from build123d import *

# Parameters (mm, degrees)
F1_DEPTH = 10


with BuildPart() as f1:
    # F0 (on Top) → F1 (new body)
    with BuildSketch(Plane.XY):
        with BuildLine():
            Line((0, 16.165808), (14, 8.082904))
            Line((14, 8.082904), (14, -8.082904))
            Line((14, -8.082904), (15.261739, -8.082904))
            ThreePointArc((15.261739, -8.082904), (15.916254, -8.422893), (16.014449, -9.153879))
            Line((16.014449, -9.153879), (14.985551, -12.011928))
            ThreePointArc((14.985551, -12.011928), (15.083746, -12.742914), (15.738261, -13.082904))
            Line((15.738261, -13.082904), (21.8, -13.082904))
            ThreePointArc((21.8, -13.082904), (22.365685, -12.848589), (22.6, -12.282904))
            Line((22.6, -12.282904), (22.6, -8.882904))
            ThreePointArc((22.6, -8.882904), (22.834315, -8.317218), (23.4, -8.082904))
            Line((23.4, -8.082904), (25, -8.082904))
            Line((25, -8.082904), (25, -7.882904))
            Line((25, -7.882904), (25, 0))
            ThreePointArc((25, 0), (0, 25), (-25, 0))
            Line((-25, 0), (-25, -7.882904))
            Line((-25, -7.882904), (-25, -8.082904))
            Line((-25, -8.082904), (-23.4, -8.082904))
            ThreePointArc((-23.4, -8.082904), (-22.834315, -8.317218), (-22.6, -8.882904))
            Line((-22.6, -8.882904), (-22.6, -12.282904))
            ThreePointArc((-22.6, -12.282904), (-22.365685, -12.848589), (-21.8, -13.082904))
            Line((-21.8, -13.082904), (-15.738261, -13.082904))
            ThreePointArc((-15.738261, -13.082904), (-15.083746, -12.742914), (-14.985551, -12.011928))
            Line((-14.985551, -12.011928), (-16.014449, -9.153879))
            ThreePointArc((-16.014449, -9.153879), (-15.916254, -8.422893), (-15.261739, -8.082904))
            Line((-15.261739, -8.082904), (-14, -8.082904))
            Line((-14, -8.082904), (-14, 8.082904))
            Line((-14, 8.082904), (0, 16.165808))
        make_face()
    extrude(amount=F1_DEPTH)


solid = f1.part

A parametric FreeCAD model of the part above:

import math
import FreeCAD as App
import Part
import Sketcher
Q = App.Units.Quantity

doc = App.newDocument("Part")
body = doc.addObject("PartDesign::Body", "Body")

sketch1 = body.newObject("Sketcher::SketchObject", "Sketch")
sketch1.AttachmentSupport = (doc.getObject("XY_Plane"), [""])
sketch1.MapMode = "FlatFace"
sketch1.addGeometry(Part.LineSegment(App.Vector(0, 16.2, 0), App.Vector(14, 8.1, 0)), False)
sketch1.addGeometry(Part.LineSegment(App.Vector(14, 8.1, 0), App.Vector(14, -8.1, 0)), False)
sketch1.addGeometry(Part.LineSegment(App.Vector(14, -8.1, 0), App.Vector(15.3, -8.1, 0)), False)
sketch1.addGeometry(Part.ArcOfCircle(Part.Circle(App.Vector(15.3, -8.9, 0), App.Vector(0, 0, 1), 0.8), math.radians(-20), math.radians(90)), False)
sketch1.addGeometry(Part.LineSegment(App.Vector(16, -9.2, 0), App.Vector(15, -12, 0)), False)
sketch1.addGeometry(Part.ArcOfCircle(Part.Circle(App.Vector(15.7, -12.3, 0), App.Vector(0, 0, 1), 0.8), math.radians(160), math.radians(270)), False)
sketch1.addGeometry(Part.LineSegment(App.Vector(15.7, -13.1, 0), App.Vector(21.8, -13.1, 0)), False)
sketch1.addGeometry(Part.ArcOfCircle(Part.Circle(App.Vector(21.8, -12.3, 0), App.Vector(0, 0, 1), 0.8), math.radians(-90), math.radians(0)), False)
sketch1.addGeometry(Part.LineSegment(App.Vector(22.6, -12.3, 0), App.Vector(22.6, -8.9, 0)), False)
sketch1.addGeometry(Part.ArcOfCircle(Part.Circle(App.Vector(23.4, -8.9, 0), App.Vector(0, 0, 1), 0.8), math.radians(90), math.radians(180)), False)
sketch1.addGeometry(Part.LineSegment(App.Vector(23.4, -8.1, 0), App.Vector(25, -8.1, 0)), False)
sketch1.addGeometry(Part.LineSegment(App.Vector(25, -8.1, 0), App.Vector(25, 0, 0)), False)
sketch1.addGeometry(Part.ArcOfCircle(Part.Circle(App.Vector(0, 0, 0), App.Vector(0, 0, 1), 25), math.radians(0), math.radians(180)), False)
sketch1.addGeometry(Part.LineSegment(App.Vector(-25, 0, 0), App.Vector(-25, -8.1, 0)), False)
sketch1.addGeometry(Part.LineSegment(App.Vector(-25, -8.1, 0), App.Vector(-23.4, -8.1, 0)), False)
sketch1.addGeometry(Part.ArcOfCircle(Part.Circle(App.Vector(-23.4, -8.9, 0), App.Vector(0, 0, 1), 0.8), math.radians(0), math.radians(90)), False)
sketch1.addGeometry(Part.LineSegment(App.Vector(-22.6, -8.9, 0), App.Vector(-22.6, -12.3, 0)), False)
sketch1.addGeometry(Part.ArcOfCircle(Part.Circle(App.Vector(-21.8, -12.3, 0), App.Vector(0, 0, 1), 0.8), math.radians(-180), math.radians(-90)), False)
sketch1.addGeometry(Part.LineSegment(App.Vector(-21.8, -13.1, 0), App.Vector(-15.7, -13.1, 0)), False)
sketch1.addGeometry(Part.ArcOfCircle(Part.Circle(App.Vector(-15.7, -12.3, 0), App.Vector(0, 0, 1), 0.8), math.radians(-90), math.radians(20)), False)
sketch1.addGeometry(Part.LineSegment(App.Vector(-15, -12, 0), App.Vector(-16, -9.2, 0)), False)
sketch1.addGeometry(Part.ArcOfCircle(Part.Circle(App.Vector(-15.3, -8.9, 0), App.Vector(0, 0, 1), 0.8), math.radians(90), math.radians(200)), False)
sketch1.addGeometry(Part.LineSegment(App.Vector(-15.3, -8.1, 0), App.Vector(-14, -8.1, 0)), False)
sketch1.addGeometry(Part.LineSegment(App.Vector(-14, -8.1, 0), App.Vector(-14, 8.1, 0)), False)
sketch1.addGeometry(Part.LineSegment(App.Vector(-14, 8.1, 0), App.Vector(0, 16.2, 0)), False)
sketch1.addConstraint(Sketcher.Constraint("Coincident", 0, 2, 1, 1))
sketch1.addConstraint(Sketcher.Constraint("Coincident", 1, 2, 2, 1))
sketch1.addConstraint(Sketcher.Constraint("Tangent", 2, 2, 3, 2))
sketch1.addConstraint(Sketcher.Constraint("Tangent", 3, 1, 4, 1))
sketch1.addConstraint(Sketcher.Constraint("Tangent", 4, 2, 5, 1))
sketch1.addConstraint(Sketcher.Constraint("Tangent", 5, 2, 6, 1))
sketch1.addConstraint(Sketcher.Constraint("Tangent", 6, 2, 7, 1))
sketch1.addConstraint(Sketcher.Constraint("Tangent", 7, 2, 8, 1))
sketch1.addConstraint(Sketcher.Constraint("Tangent", 8, 2, 9, 2))
sketch1.addConstraint(Sketcher.Constraint("Tangent", 9, 1, 10, 1))
sketch1.addConstraint(Sketcher.Constraint("Coincident", 10, 2, 11, 1))
sketch1.addConstraint(Sketcher.Constraint("Tangent", 11, 2, 12, 1))
sketch1.addConstraint(Sketcher.Constraint("Tangent", 12, 2, 13, 1))
sketch1.addConstraint(Sketcher.Constraint("Coincident", 13, 2, 14, 1))
sketch1.addConstraint(Sketcher.Constraint("Tangent", 14, 2, 15, 2))
sketch1.addConstraint(Sketcher.Constraint("Tangent", 15, 1, 16, 1))
sketch1.addConstraint(Sketcher.Constraint("Tangent", 16, 2, 17, 1))
sketch1.addConstraint(Sketcher.Constraint("Tangent", 17, 2, 18, 1))
sketch1.addConstraint(Sketcher.Constraint("Tangent", 18, 2, 19, 1))
sketch1.addConstraint(Sketcher.Constraint("Tangent", 19, 2, 20, 1))
sketch1.addConstraint(Sketcher.Constraint("Tangent", 20, 2, 21, 2))
sketch1.addConstraint(Sketcher.Constraint("Tangent", 21, 1, 22, 1))
sketch1.addConstraint(Sketcher.Constraint("Coincident", 22, 2, 23, 1))
sketch1.addConstraint(Sketcher.Constraint("Coincident", 23, 2, 24, 1))
sketch1.addConstraint(Sketcher.Constraint("Coincident", 24, 2, 0, 1))
sketch1.addConstraint(Sketcher.Constraint("Vertical", 1))
sketch1.addConstraint(Sketcher.Constraint("Horizontal", 2))
sketch1.addConstraint(Sketcher.Constraint("Horizontal", 6))
sketch1.addConstraint(Sketcher.Constraint("Vertical", 8))
sketch1.addConstraint(Sketcher.Constraint("Horizontal", 10))
sketch1.addConstraint(Sketcher.Constraint("Vertical", 11))
sketch1.addConstraint(Sketcher.Constraint("Vertical", 13))
sketch1.addConstraint(Sketcher.Constraint("Horizontal", 14))
sketch1.addConstraint(Sketcher.Constraint("Vertical", 16))
sketch1.addConstraint(Sketcher.Constraint("Horizontal", 18))
sketch1.addConstraint(Sketcher.Constraint("Horizontal", 22))
sketch1.addConstraint(Sketcher.Constraint("Vertical", 23))
sketch1.addConstraint(Sketcher.Constraint("Coincident", 12, 3, -1, 1))
sketch1.addConstraint(Sketcher.Constraint("Equal", 3, 5))
sketch1.addConstraint(Sketcher.Constraint("Equal", 5, 7))
sketch1.addConstraint(Sketcher.Constraint("Equal", 7, 9))
sketch1.addConstraint(Sketcher.Constraint("Equal", 9, 15))
sketch1.addConstraint(Sketcher.Constraint("Equal", 15, 17))
sketch1.addConstraint(Sketcher.Constraint("Equal", 17, 19))
sketch1.addConstraint(Sketcher.Constraint("Equal", 19, 21))
sketch1.addConstraint(Sketcher.Constraint("Symmetric", 0, 2, 22, 2, -1, 1))
sketch1.addConstraint(Sketcher.Constraint("Symmetric", 9, 3, 15, 3, -2))
sketch1.addConstraint(Sketcher.Constraint("Symmetric", 5, 3, 19, 3, -2))
sketch1.addConstraint(Sketcher.Constraint("Symmetric", 3, 3, 21, 3, -2))
sketch1.addConstraint(Sketcher.Constraint("PointOnObject", 24, 2, -2))
sketch1.addConstraint(Sketcher.Constraint("Horizontal", 3, 3, 9, 3))
sketch1.addConstraint(Sketcher.Constraint("Horizontal", 0, 2, 23, 2))
sketch1.addConstraint(Sketcher.Constraint("Radius", 12, Q("25 mm")))
sketch1.addConstraint(Sketcher.Constraint("Radius", 3, Q("0.8 mm")))
sketch1.addConstraint(Sketcher.Constraint("Angle", 0, Q("-30.000001 deg")))
sketch1.addConstraint(Sketcher.Constraint("DistanceX", 10, 1, 10, 2, Q("1.6 mm")))
sketch1.addConstraint(Sketcher.Constraint("DistanceY", 8, 1, 8, 2, Q("3.4 mm")))
sketch1.addConstraint(Sketcher.Constraint("DistanceX", -1, 1, 0, 2, Q("14 mm")))
sketch1.addConstraint(Sketcher.Constraint("DistanceX", 19, 3, 3, 3, Q("31.000001 mm")))
sketch1.addConstraint(Sketcher.Constraint("DistanceX", 2, 1, 2, 2, Q("1.261739 mm")))
sketch1.addConstraint(Sketcher.Constraint("DistanceY", 1, 2, 1, 1, Q("16.165808 mm")))
pad1 = body.newObject("PartDesign::Pad", "Pad")
pad1.Profile = sketch1
pad1.Length = 10

doc.recompute()
